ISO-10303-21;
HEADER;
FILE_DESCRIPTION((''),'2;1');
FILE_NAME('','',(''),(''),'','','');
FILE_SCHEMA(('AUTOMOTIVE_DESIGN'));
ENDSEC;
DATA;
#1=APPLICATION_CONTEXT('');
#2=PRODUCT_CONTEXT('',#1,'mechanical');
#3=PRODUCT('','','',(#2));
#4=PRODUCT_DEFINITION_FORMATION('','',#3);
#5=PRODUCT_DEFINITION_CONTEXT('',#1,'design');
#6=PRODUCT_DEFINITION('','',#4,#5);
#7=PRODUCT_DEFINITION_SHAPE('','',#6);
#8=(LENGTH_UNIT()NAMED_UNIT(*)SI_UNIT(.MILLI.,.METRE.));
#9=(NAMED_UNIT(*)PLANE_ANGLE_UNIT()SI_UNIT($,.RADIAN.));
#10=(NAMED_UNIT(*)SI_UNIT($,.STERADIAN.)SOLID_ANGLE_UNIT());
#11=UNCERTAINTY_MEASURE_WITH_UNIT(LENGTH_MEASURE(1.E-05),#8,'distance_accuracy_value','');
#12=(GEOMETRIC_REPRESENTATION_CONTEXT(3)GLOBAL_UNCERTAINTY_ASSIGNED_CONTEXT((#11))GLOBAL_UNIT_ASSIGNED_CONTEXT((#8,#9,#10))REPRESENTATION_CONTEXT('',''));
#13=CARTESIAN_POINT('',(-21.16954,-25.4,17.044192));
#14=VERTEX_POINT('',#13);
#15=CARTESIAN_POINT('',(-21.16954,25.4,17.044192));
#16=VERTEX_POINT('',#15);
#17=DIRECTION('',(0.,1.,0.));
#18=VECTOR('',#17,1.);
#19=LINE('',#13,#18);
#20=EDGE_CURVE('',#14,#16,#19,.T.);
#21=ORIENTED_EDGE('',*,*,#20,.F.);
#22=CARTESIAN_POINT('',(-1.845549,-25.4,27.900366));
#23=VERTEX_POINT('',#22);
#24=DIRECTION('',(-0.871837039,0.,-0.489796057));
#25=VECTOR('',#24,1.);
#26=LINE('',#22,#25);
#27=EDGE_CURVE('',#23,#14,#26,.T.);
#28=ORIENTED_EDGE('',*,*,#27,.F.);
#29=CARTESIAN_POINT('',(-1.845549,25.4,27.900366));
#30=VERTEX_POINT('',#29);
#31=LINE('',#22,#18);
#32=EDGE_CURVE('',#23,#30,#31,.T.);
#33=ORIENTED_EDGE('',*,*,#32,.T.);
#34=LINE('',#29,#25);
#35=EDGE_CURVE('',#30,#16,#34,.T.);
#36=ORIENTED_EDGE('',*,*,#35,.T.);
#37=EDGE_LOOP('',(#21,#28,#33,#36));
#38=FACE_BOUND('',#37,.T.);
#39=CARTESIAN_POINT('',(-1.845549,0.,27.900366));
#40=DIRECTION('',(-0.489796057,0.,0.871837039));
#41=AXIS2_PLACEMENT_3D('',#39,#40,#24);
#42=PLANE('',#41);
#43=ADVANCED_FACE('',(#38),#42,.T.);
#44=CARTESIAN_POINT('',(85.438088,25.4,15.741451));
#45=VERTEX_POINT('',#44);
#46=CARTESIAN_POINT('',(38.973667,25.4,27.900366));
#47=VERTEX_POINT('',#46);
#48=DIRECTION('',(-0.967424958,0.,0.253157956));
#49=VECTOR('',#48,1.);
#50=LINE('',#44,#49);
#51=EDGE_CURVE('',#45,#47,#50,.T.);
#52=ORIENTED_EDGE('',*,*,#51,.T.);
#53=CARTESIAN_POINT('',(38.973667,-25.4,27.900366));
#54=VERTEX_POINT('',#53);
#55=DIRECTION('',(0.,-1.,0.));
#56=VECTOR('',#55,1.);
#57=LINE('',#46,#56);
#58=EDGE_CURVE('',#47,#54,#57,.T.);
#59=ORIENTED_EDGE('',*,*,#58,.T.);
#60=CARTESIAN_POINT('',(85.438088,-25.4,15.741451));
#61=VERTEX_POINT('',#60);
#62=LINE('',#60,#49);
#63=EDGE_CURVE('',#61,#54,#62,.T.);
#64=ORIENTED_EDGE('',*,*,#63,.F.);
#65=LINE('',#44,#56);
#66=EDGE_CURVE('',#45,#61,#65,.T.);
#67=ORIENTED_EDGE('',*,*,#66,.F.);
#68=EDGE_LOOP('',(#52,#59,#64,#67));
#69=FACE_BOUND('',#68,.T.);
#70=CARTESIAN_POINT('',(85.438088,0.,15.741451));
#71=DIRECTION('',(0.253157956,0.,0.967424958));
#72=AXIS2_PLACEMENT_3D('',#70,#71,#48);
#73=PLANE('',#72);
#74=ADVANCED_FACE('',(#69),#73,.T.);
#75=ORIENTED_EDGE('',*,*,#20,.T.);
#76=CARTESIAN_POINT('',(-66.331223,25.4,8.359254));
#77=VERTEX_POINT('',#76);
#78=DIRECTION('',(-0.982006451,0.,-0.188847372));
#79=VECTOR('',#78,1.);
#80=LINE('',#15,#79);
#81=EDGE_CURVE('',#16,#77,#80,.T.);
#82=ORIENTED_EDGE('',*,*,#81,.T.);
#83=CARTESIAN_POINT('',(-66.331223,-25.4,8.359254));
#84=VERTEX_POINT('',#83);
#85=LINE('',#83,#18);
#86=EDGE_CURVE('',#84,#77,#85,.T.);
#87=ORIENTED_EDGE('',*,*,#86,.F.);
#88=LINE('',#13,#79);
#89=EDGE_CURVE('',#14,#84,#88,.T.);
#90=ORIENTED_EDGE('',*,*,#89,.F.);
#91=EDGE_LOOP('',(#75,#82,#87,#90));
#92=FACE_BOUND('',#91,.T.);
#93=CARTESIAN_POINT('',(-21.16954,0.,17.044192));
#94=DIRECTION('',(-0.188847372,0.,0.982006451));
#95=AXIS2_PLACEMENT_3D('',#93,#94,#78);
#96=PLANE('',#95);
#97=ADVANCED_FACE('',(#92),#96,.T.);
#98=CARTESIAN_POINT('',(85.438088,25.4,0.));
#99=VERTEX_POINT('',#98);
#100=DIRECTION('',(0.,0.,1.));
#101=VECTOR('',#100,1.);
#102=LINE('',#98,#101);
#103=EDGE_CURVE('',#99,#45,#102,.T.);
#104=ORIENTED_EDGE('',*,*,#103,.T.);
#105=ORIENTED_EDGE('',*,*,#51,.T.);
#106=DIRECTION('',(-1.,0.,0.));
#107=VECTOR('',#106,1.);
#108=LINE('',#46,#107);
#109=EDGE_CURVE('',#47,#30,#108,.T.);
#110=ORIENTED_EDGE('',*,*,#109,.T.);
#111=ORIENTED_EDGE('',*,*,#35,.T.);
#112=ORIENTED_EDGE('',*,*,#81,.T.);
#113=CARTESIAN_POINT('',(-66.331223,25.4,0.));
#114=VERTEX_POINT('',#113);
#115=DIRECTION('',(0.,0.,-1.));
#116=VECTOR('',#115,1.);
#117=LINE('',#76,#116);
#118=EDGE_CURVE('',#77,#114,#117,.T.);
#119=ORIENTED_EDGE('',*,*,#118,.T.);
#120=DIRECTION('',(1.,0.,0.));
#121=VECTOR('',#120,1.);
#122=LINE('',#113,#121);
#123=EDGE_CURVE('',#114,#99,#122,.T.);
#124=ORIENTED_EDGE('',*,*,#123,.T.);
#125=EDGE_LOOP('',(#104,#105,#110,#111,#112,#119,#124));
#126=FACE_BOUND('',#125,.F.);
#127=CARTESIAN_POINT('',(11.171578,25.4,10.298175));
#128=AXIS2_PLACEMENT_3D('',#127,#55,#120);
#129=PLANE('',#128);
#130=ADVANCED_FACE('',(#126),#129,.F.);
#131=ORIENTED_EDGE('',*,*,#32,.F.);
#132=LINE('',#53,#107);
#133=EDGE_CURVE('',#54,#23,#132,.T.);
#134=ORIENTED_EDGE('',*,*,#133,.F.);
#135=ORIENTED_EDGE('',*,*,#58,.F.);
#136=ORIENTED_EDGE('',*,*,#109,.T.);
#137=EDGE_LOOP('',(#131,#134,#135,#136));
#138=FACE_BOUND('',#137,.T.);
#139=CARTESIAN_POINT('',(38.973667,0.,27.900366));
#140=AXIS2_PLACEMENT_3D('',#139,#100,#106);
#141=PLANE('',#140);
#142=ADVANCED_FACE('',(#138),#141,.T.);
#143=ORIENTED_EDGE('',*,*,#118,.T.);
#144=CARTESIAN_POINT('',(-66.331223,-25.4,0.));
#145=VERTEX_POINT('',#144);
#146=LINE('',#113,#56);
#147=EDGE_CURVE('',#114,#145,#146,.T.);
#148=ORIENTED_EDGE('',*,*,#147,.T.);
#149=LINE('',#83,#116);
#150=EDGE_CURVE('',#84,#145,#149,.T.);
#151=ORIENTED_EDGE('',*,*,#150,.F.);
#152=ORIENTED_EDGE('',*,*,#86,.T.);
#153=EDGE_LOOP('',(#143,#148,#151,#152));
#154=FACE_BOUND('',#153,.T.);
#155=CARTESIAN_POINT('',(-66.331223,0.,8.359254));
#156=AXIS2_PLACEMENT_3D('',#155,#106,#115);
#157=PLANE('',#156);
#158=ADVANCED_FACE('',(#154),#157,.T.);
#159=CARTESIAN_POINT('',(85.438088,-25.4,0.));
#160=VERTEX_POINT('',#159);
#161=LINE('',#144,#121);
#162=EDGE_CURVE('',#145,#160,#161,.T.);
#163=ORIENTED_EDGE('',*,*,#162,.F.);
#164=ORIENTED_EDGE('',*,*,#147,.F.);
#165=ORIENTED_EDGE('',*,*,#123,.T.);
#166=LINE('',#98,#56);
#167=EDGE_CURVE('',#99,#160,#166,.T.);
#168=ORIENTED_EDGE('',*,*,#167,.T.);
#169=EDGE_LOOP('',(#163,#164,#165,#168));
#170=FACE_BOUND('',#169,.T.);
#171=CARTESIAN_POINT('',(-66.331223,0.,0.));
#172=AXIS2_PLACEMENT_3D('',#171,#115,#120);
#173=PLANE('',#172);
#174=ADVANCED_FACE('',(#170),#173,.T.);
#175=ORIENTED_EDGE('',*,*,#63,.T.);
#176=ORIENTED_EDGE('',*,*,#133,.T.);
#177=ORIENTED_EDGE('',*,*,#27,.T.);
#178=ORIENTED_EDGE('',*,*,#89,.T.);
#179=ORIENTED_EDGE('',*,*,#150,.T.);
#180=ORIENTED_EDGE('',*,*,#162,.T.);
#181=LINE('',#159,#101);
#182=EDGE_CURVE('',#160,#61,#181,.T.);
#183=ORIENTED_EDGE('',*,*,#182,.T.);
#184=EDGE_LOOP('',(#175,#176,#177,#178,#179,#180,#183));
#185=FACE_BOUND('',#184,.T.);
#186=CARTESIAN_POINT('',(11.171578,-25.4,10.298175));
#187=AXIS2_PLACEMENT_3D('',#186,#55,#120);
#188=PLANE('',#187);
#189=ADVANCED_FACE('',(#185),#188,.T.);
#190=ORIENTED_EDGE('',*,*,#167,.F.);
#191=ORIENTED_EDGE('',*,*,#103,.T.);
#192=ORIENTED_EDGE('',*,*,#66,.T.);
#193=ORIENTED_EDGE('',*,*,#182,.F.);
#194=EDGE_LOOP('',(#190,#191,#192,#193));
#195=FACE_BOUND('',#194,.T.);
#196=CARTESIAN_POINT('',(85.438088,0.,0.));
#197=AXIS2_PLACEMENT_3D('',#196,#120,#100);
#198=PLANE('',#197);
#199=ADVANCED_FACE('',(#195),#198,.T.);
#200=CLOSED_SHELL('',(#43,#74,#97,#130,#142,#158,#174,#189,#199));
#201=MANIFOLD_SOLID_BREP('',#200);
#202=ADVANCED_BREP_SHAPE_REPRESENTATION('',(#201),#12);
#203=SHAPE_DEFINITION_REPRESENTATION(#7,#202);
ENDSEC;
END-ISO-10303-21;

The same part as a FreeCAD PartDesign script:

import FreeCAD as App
import Part
import Sketcher
Q = App.Units.Quantity


def add_polygon(sketch, points):
    """Adds a closed chain of lines whose ends are joined by coincident constraints."""
    first, n = sketch.GeometryCount, len(points)
    for a, b in zip(points, points[1:] + points[:1]):
        sketch.addGeometry(Part.LineSegment(App.Vector(*a, 0), App.Vector(*b, 0)), False)
    for i in range(n):
        sketch.addConstraint(Sketcher.Constraint("Coincident", first + i, 2, first + (i + 1) % n, 1))

doc = App.newDocument("Part")
body = doc.addObject("PartDesign::Body", "Body")

sketch1 = body.newObject("Sketcher::SketchObject", "Sketch")
sketch1.AttachmentSupport = (doc.getObject("XZ_Plane"), [""])
sketch1.MapMode = "FlatFace"
add_polygon(sketch1, [(-66.331223, 8.359254), (-66.331223, 0), (85.438088, 0), (85.438088, 15.741451), (38.973667, 27.900366), (-1.845549, 27.900366), (-21.16954, 17.044192)])
sketch1.addConstraint(Sketcher.Constraint("Vertical", 0))
sketch1.addConstraint(Sketcher.Constraint("Horizontal", 1))
sketch1.addConstraint(Sketcher.Constraint("Vertical", 2))
sketch1.addConstraint(Sketcher.Constraint("Horizontal", 4))
sketch1.addConstraint(Sketcher.Constraint("PointOnObject", 0, 2, -1))
sketch1.addConstraint(Sketcher.Constraint("DistanceX", 1, 1, 1, 2, 151.769311))
sketch1.addConstraint(Sketcher.Constraint("DistanceY", 2, 1, 2, 2, 15.741451))
sketch1.addConstraint(Sketcher.Constraint("Distance", 6, 45.989192))
sketch1.addConstraint(Sketcher.Constraint("DistanceX", 4, 2, 4, 1, 40.819216))
sketch1.addConstraint(Sketcher.Constraint("DistanceY", 0, 2, 0, 1, 8.359254))
sketch1.addConstraint(Sketcher.Constraint("DistanceX", 4, 2, -1, 1, 1.845549))
sketch1.addConstraint(Sketcher.Constraint("DistanceX", 5, 2, -1, 1, 21.16954))
sketch1.addConstraint(Sketcher.Constraint("DistanceY", -1, 1, 5, 2, 17.044192))
sketch1.addConstraint(Sketcher.Constraint("Distance", 3, 48.028967))
pad1 = body.newObject("PartDesign::Pad", "Pad")
pad1.Profile = sketch1
pad1.Type = "TwoLengths"
pad1.Length = Q("1 in")
pad1.Length2 = Q("1 in")

doc.recompute()
